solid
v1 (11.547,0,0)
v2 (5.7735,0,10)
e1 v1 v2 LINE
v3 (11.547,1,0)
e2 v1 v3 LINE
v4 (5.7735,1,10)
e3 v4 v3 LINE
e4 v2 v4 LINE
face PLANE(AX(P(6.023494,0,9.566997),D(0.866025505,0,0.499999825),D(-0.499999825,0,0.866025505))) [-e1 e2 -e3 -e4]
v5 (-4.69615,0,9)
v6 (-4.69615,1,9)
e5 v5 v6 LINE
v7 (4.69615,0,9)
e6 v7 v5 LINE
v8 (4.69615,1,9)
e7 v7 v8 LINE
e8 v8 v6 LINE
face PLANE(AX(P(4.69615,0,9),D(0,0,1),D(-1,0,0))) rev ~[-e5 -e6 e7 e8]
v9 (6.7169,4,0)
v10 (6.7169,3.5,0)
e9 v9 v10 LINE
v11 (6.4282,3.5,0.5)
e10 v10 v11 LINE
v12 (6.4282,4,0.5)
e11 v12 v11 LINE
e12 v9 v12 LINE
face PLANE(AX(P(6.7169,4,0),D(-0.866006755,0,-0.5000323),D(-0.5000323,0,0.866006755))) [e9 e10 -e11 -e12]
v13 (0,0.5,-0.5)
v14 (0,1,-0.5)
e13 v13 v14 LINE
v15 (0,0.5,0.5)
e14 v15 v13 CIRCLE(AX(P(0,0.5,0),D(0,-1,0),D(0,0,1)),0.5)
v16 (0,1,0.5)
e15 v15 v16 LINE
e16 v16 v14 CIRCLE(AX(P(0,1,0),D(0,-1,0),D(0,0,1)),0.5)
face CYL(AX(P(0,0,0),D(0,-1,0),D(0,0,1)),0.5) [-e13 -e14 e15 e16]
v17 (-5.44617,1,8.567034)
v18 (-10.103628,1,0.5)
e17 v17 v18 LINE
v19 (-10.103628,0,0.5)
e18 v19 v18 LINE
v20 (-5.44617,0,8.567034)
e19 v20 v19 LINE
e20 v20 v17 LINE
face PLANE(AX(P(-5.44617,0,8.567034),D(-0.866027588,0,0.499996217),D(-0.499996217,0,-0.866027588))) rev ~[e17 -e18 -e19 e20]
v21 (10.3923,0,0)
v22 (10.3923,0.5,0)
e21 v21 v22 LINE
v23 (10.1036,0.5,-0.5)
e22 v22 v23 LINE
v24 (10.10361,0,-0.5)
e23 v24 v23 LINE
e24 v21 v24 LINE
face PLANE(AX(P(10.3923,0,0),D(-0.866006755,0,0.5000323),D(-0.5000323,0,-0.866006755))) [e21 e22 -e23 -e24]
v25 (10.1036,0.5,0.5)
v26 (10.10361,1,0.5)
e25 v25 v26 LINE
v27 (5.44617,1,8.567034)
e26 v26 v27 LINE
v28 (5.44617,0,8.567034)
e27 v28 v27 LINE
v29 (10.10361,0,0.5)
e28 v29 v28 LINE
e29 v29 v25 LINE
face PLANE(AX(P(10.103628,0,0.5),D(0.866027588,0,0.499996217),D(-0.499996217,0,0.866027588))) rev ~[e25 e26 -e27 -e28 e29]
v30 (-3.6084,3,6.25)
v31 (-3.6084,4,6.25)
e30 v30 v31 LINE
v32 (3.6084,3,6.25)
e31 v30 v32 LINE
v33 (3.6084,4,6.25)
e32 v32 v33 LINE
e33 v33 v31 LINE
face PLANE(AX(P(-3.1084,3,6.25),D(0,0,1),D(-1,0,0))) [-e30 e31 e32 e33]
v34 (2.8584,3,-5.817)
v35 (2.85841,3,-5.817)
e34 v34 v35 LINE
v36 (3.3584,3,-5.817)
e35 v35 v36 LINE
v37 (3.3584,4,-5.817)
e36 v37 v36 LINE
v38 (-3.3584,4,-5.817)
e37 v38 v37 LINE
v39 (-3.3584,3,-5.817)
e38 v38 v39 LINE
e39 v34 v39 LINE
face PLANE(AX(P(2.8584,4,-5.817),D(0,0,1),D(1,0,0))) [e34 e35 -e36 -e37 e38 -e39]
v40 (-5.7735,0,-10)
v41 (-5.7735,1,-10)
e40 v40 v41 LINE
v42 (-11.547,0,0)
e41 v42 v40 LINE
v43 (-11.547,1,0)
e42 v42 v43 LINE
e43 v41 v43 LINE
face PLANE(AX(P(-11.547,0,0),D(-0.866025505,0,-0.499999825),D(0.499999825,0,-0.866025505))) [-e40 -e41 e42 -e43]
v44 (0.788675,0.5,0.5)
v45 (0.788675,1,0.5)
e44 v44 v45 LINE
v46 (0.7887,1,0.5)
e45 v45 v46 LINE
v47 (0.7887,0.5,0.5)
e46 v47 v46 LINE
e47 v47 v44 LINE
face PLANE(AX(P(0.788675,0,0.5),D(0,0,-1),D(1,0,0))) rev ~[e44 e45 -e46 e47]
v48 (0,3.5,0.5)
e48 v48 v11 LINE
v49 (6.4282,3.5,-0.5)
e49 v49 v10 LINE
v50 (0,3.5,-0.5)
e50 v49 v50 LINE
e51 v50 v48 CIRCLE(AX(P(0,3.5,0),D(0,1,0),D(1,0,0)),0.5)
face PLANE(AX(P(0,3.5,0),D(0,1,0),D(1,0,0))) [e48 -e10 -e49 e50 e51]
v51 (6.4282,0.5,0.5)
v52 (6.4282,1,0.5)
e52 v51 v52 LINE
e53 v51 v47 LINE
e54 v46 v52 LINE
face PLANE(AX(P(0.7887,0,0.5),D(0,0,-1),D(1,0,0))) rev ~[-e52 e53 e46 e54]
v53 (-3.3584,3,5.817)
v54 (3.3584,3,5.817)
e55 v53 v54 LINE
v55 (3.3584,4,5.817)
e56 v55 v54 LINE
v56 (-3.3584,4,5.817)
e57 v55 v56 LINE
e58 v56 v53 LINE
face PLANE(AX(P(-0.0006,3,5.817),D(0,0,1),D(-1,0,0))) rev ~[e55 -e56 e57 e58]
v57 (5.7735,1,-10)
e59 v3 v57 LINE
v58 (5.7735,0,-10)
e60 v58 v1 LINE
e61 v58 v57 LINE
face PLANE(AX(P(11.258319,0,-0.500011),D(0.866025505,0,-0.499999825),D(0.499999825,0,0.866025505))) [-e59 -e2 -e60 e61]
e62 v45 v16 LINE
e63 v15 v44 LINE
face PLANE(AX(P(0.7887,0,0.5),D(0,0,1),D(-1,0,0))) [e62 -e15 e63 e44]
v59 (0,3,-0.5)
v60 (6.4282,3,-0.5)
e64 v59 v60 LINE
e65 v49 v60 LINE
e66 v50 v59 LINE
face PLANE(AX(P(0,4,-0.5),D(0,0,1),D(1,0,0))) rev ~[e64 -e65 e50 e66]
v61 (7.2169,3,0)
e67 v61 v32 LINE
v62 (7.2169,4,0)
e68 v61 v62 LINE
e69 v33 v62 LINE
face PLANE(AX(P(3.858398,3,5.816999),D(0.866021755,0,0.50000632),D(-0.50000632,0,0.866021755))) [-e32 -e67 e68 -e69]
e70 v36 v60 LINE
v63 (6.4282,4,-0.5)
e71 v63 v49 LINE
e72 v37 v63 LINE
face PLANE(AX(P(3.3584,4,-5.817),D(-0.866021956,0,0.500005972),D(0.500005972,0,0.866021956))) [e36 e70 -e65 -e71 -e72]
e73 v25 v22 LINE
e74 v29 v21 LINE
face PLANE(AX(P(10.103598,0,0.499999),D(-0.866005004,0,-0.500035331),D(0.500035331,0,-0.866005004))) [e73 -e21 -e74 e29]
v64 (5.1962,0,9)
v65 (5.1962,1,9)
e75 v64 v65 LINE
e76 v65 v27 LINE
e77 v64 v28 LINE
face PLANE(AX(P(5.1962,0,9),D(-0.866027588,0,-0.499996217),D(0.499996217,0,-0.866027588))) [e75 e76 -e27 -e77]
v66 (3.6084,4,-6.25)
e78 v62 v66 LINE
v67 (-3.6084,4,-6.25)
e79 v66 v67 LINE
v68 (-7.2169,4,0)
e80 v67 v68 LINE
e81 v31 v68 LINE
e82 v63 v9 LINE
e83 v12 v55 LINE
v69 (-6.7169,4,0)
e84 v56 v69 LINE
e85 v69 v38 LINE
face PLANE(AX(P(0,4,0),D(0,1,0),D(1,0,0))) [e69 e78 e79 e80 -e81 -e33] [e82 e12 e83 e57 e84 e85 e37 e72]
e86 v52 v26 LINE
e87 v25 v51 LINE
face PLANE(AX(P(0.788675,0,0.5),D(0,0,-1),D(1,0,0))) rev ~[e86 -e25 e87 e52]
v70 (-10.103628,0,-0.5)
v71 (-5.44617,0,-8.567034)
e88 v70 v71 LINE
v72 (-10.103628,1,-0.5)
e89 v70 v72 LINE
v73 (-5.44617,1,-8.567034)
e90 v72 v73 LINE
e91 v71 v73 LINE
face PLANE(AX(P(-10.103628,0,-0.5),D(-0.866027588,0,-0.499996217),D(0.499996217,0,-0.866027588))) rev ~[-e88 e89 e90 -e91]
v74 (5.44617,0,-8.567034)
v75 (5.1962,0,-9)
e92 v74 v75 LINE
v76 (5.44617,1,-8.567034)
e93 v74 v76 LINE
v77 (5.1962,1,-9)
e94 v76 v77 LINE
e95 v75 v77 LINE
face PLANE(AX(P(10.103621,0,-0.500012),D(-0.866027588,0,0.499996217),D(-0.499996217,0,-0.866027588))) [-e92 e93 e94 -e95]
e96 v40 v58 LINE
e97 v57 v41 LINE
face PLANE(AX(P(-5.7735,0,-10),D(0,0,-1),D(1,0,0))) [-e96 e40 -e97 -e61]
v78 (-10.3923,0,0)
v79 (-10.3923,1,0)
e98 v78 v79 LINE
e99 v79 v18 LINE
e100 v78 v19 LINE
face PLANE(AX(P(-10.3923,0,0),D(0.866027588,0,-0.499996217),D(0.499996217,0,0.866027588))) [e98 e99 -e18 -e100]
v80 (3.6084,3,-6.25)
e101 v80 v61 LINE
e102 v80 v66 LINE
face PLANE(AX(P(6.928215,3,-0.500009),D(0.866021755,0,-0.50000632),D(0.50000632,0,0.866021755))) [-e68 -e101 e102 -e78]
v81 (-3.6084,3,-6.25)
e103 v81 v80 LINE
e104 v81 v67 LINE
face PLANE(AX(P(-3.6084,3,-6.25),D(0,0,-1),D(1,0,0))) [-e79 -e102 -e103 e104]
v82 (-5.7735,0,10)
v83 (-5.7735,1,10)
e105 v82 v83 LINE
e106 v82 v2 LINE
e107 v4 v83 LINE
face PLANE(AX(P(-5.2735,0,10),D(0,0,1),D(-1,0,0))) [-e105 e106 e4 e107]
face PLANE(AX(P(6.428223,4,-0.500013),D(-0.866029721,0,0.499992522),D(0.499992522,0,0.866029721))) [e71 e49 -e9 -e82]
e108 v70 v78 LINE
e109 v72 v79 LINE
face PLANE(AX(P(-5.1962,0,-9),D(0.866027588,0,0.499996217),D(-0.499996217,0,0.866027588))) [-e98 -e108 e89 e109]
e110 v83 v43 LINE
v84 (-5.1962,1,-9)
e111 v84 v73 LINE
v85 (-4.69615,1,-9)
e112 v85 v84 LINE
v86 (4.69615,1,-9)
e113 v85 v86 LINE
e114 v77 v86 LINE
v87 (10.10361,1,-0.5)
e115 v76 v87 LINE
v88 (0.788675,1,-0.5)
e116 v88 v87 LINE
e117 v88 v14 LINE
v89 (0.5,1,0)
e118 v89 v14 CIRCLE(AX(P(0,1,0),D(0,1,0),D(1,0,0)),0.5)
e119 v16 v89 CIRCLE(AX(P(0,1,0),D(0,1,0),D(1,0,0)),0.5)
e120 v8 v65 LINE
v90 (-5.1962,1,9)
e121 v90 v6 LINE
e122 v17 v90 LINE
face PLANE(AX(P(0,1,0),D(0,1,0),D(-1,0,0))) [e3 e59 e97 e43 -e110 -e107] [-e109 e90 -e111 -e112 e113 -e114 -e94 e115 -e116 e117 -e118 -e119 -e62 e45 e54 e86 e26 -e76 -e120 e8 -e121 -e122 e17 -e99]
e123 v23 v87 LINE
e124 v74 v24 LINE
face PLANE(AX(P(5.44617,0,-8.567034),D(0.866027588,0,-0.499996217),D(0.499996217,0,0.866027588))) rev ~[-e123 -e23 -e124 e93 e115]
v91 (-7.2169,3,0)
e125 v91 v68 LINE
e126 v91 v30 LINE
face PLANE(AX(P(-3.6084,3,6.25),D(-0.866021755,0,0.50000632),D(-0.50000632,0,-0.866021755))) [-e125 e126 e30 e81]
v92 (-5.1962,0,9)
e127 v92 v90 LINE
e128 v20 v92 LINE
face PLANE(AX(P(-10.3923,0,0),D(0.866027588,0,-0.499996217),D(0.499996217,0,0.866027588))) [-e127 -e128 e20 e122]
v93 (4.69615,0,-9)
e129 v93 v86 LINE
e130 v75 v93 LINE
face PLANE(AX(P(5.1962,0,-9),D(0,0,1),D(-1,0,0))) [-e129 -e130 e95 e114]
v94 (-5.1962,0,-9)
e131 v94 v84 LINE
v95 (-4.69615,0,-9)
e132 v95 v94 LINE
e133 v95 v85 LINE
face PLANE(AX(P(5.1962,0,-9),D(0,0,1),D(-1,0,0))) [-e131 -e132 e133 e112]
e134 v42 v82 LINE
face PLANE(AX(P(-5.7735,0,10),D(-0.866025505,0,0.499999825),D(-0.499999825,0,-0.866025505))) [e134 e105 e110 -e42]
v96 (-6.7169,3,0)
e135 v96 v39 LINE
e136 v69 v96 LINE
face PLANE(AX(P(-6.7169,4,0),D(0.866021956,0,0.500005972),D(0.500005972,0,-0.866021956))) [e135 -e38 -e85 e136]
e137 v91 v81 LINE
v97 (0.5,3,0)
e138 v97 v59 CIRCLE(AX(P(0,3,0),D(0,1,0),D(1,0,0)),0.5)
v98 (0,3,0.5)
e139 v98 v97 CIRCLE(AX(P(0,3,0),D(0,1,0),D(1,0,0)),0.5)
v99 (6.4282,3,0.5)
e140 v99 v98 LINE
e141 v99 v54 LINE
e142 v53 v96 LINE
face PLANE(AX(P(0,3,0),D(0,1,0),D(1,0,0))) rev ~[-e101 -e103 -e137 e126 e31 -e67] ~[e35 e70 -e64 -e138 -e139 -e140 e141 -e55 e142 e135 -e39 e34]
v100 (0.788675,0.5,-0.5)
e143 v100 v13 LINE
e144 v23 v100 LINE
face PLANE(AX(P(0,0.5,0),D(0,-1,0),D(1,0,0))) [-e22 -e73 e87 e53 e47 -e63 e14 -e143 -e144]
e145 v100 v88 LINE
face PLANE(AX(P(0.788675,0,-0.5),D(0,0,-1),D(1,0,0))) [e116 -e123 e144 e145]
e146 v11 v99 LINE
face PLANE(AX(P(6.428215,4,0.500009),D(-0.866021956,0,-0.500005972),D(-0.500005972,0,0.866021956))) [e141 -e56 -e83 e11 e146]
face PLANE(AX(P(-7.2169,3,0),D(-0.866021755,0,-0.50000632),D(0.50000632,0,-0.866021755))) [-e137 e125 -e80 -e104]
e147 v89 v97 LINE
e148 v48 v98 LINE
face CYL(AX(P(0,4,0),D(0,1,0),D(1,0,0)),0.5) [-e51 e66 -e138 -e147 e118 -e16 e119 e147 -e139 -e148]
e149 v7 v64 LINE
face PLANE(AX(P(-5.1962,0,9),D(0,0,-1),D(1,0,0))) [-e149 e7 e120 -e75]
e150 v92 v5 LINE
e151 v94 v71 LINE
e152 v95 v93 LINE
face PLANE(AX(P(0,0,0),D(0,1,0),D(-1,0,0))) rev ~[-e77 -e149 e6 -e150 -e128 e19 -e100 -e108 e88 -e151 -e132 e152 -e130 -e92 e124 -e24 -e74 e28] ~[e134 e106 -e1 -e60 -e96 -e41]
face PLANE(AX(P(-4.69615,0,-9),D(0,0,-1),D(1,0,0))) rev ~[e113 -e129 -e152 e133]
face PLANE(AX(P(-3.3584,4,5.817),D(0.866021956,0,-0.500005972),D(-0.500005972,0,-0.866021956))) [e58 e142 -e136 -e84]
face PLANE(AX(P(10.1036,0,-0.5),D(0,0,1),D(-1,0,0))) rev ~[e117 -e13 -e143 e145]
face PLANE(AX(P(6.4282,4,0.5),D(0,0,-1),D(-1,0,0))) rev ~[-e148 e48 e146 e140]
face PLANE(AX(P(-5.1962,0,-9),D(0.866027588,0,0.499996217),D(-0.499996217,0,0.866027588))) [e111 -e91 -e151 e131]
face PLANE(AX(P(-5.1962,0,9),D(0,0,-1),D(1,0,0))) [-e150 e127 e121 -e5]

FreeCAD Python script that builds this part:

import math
import FreeCAD as App
import Part
import Sketcher

V = App.Vector
Q = App.Units.Quantity


def add_polygon(sketch, points):
    """Adds a closed chain of lines whose ends are joined by coincident constraints."""
    first, n = sketch.GeometryCount, len(points)
    for a, b in zip(points, points[1:] + points[:1]):
        sketch.addGeometry(Part.LineSegment(App.Vector(*a, 0), App.Vector(*b, 0)), False)
    for i in range(n):
        sketch.addConstraint(Sketcher.Constraint("Coincident", first + i, 2, first + (i + 1) % n, 1))

doc = App.newDocument("Part")
body = doc.addObject("PartDesign::Body", "Body")

# Sketch on XZ plane
sketch1 = body.newObject("Sketcher::SketchObject", "Sketch")
sketch1.AttachmentSupport = (doc.getObject("XZ_Plane"), [""])
sketch1.MapMode = "FlatFace"
add_polygon(sketch1, [(-6, 10), (6, 10), (12, 0), (6, -10), (-6, -10), (-12, 0)])  # lines 0-5
add_polygon(sketch1, [(-5, 9), (0, 1), (5, 9)])  # lines 6-8
add_polygon(sketch1, [(-5, 9), (-10, 0), (-1, 0)])  # lines 9-11
add_polygon(sketch1, [(5, 9), (1, 0), (10, 0)])  # lines 12-14
add_polygon(sketch1, [(-10, 0), (-5, -9), (-1, 0)])  # lines 15-17
add_polygon(sketch1, [(10, 0), (1, 0), (5, -9)])  # lines 18-20
add_polygon(sketch1, [(-5, -9), (5, -9), (0, -1)])  # lines 21-23
sketch1.addConstraint(Sketcher.Constraint("Horizontal", 0))
sketch1.addConstraint(Sketcher.Constraint("Horizontal", 3))
sketch1.addConstraint(Sketcher.Constraint("Horizontal", 8))
sketch1.addConstraint(Sketcher.Constraint("Horizontal", 10))
sketch1.addConstraint(Sketcher.Constraint("Horizontal", 13))
sketch1.addConstraint(Sketcher.Constraint("Horizontal", 17))
sketch1.addConstraint(Sketcher.Constraint("Horizontal", 18))
sketch1.addConstraint(Sketcher.Constraint("Horizontal", 21))
sketch1.addConstraint(Sketcher.Constraint("Symmetric", 0, 2, 3, 2, -1, 1))
sketch1.addConstraint(Sketcher.Constraint("Symmetric", 1, 2, 4, 2, -1, 1))
sketch1.addConstraint(Sketcher.Constraint("Symmetric", 14, 2, 15, 2, -1, 1))
sketch1.addConstraint(Sketcher.Constraint("Symmetric", 12, 2, 16, 2, -1, 1))
sketch1.addConstraint(Sketcher.Constraint("Symmetric", 10, 2, 18, 2, -1, 1))
sketch1.addConstraint(Sketcher.Constraint("Symmetric", 11, 2, 19, 2, -1, 1))
sketch1.addConstraint(Sketcher.Constraint("Symmetric", 8, 2, 21, 2, -1, 1))
sketch1.addConstraint(Sketcher.Constraint("Symmetric", 6, 2, 22, 2, -1, 1))
sketch1.addConstraint(Sketcher.Constraint("Symmetric", 10, 2, 12, 2, -2))
sketch1.addConstraint(Sketcher.Constraint("Symmetric", 11, 2, 14, 2, -2))
sketch1.addConstraint(Sketcher.Constraint("PointOnObject", 1, 2, -1))
sketch1.addConstraint(Sketcher.Constraint("PointOnObject", 6, 2, -2))
sketch1.addConstraint(Sketcher.Constraint("Parallel", 2, 5))
sketch1.addConstraint(Sketcher.Constraint("Parallel", 4, 6))
sketch1.addConstraint(Sketcher.Constraint("Parallel", 5, 7))
sketch1.addConstraint(Sketcher.Constraint("Parallel", 7, 9))
sketch1.addConstraint(Sketcher.Constraint("Parallel", 6, 11))
sketch1.addConstraint(Sketcher.Constraint("Parallel", 9, 12))
sketch1.addConstraint(Sketcher.Constraint("Parallel", 11, 14))
sketch1.addConstraint(Sketcher.Constraint("Parallel", 14, 15))
sketch1.addConstraint(Sketcher.Constraint("Parallel", 16, 20))
sketch1.addConstraint(Sketcher.Constraint("Parallel", 20, 23))
sketch1.addConstraint(Sketcher.Constraint("Angle", 1, Q("-60 deg")))
sketch1.addConstraint(Sketcher.Constraint("DistanceY", 2, 2, 0, 2, Q("20 mm")))
sketch1.addConstraint(Sketcher.Constraint("DistanceY", -1, 1, 7, 2, Q("9 mm")))
sketch1.addConstraint(Sketcher.Constraint("DistanceY", 16, 2, 10, 2, Q("1 mm")))
sketch1.addConstraint(Sketcher.Constraint("DistanceX", 0, 1, 0, 2, Q("11.547 mm")))
sketch1.addConstraint(Sketcher.Constraint("DistanceX", 10, 1, 10, 2, Q("9.315 mm")))
sketch1.addConstraint(Sketcher.Constraint("DistanceX", 11, 2, 8, 2, Q("0.75 mm")))
sketch1.addConstraint(Sketcher.Constraint("DistanceX", 8, 2, 8, 1, Q("9.3923 mm")))
pad1 = body.newObject("PartDesign::Pad", "Pad")
pad1.Profile = sketch1
pad1.Length = 1
pad1.Reversed = True

# Sketch on XZ plane
sketch2 = body.newObject("Sketcher::SketchObject", "Sketch001")
sketch2.AttachmentSupport = (doc.getObject("XZ_Plane"), [""])
sketch2.MapMode = "FlatFace"
sketch2.AttachmentOffset = App.Placement(V(0, 0, -1), App.Rotation())
sketch2.addGeometry(Part.Circle(V(0, 0, 0), V(0, 0, 1), 0.5), False)
sketch2.addConstraint(Sketcher.Constraint("Coincident", 0, 3, -1, 1))
sketch2.addConstraint(Sketcher.Constraint("Diameter", 0, Q("1 mm")))
pad2 = body.newObject("PartDesign::Pad", "Pad001")
pad2.Profile = sketch2
pad2.Length = 2
pad2.Reversed = True

# Sketch on XZ plane
sketch3 = body.newObject("Sketcher::SketchObject", "Sketch002")
sketch3.AttachmentSupport = (doc.getObject("XZ_Plane"), [""])
sketch3.MapMode = "FlatFace"
sketch3.AttachmentOffset = App.Placement(V(0, 0, -3), App.Rotation())
add_polygon(sketch3, [(-4, 6), (4, 6), (7, 0), (4, -6), (-4, -6), (-7, 0)])  # lines 0-5
add_polygon(sketch3, [(-4, 5), (-6, 0), (-1, 0)])  # lines 6-8
add_polygon(sketch3, [(-3, 6), (0, 1), (3, 6)])  # lines 9-11
add_polygon(sketch3, [(4, 5), (1, 0), (6, 0)])  # lines 12-14
add_polygon(sketch3, [(-1, 0), (-6, 0), (-4, -5)])  # lines 15-17
add_polygon(sketch3, [(0, -1), (-3, -6), (3, -6)])  # lines 18-20
add_polygon(sketch3, [(1, 0), (4, -5), (6, 0)])  # lines 21-23
sketch3.addConstraint(Sketcher.Constraint("Horizontal", 0))
sketch3.addConstraint(Sketcher.Constraint("Horizontal", 3))
sketch3.addConstraint(Sketcher.Constraint("Horizontal", 7))
sketch3.addConstraint(Sketcher.Constraint("Horizontal", 11))
sketch3.addConstraint(Sketcher.Constraint("Horizontal", 13))
sketch3.addConstraint(Sketcher.Constraint("Horizontal", 15))
sketch3.addConstraint(Sketcher.Constraint("Horizontal", 19))
sketch3.addConstraint(Sketcher.Constraint("Horizontal", 23))
sketch3.addConstraint(Sketcher.Constraint("Symmetric", 0, 2, 3, 2, -1, 1))
sketch3.addConstraint(Sketcher.Constraint("Symmetric", 1, 2, 4, 2, -1, 1))
sketch3.addConstraint(Sketcher.Constraint("Symmetric", 13, 2, 15, 2, -1, 1))
sketch3.addConstraint(Sketcher.Constraint("Symmetric", 14, 2, 16, 2, -1, 1))
sketch3.addConstraint(Sketcher.Constraint("Symmetric", 10, 2, 18, 2, -1, 1))
sketch3.addConstraint(Sketcher.Constraint("Symmetric", 9, 2, 20, 2, -1, 1))
sketch3.addConstraint(Sketcher.Constraint("Symmetric", 8, 2, 21, 2, -1, 1))
sketch3.addConstraint(Sketcher.Constraint("Symmetric", 6, 2, 22, 2, -1, 1))
sketch3.addConstraint(Sketcher.Constraint("Symmetric", 7, 2, 12, 2, -2))
sketch3.addConstraint(Sketcher.Constraint("Symmetric", 8, 2, 14, 2, -2))
sketch3.addConstraint(Sketcher.Constraint("PointOnObject", 1, 2, -1))
sketch3.addConstraint(Sketcher.Constraint("PointOnObject", 9, 2, -2))
sketch3.addConstraint(Sketcher.Constraint("Parallel", 2, 5))
sketch3.addConstraint(Sketcher.Constraint("Parallel", 4, 8))
sketch3.addConstraint(Sketcher.Constraint("Parallel", 8, 9))
sketch3.addConstraint(Sketcher.Constraint("Parallel", 5, 10))
sketch3.addConstraint(Sketcher.Constraint("Parallel", 10, 12))
sketch3.addConstraint(Sketcher.Constraint("Parallel", 12, 17))
sketch3.addConstraint(Sketcher.Constraint("Parallel", 9, 20))
sketch3.addConstraint(Sketcher.Constraint("Parallel", 20, 21))
sketch3.addConstraint(Sketcher.Constraint("Vertical", 6, 2, 15, 2))
sketch3.addConstraint(Sketcher.Constraint("DistanceY", 2, 2, 0, 2, Q("12.5 mm")))
sketch3.addConstraint(Sketcher.Constraint("Angle", 1, Q("-59.9996 deg")))
sketch3.addConstraint(Sketcher.Constraint("DistanceY", 15, 2, 6, 2, Q("1 mm")))
sketch3.addConstraint(Sketcher.Constraint("DistanceX", 10, 2, 0, 2, Q("0.75 mm")))
sketch3.addConstraint(Sketcher.Constraint("Distance", 9, Q("5.717 mm")))
sketch3.addConstraint(Sketcher.Constraint("DistanceX", 7, 1, 7, 2, Q("5.5736 mm")))
sketch3.addConstraint(Sketcher.Constraint("DistanceY", -1, 1, 9, 2, Q("0.866 mm")))
sketch3.addConstraint(Sketcher.Constraint("DistanceX", 6, 2, 5, 2, Q("2.754 mm")))
sketch3.addConstraint(Sketcher.Constraint("DistanceX", 5, 2, 8, 2, Q("0.005 mm")))
pad3 = body.newObject("PartDesign::Pad", "Pad002")
pad3.Profile = sketch3
pad3.Length = 1
pad3.Reversed = True

# Sketch on XZ plane
sketch4 = body.newObject("Sketcher::SketchObject", "Sketch003")
sketch4.AttachmentSupport = (doc.getObject("XZ_Plane"), [""])
sketch4.MapMode = "FlatFace"
sketch4.AttachmentOffset = App.Placement(V(0, 0, -4), App.Rotation())
sketch4.addGeometry(Part.LineSegment(V(3.4, -5.8, 0), V(-3.4, -5.8, 0)), False)
sketch4.addGeometry(Part.LineSegment(V(-3.4, -5.8, 0), V(-6.7, 0, 0)), False)
sketch4.addGeometry(Part.LineSegment(V(-6.7, 0, 0), V(-3.4, 5.8, 0)), False)
sketch4.addGeometry(Part.LineSegment(V(-3.4, 5.8, 0), V(3.4, 5.8, 0)), False)
sketch4.addGeometry(Part.LineSegment(V(3.4, 5.8, 0), V(6.4, 0.5, 0)), False)
sketch4.addGeometry(Part.LineSegment(V(6.4, 0.5, 0), V(0, 0.5, 0)), False)
sketch4.addGeometry(Part.ArcOfCircle(Part.Circle(V(0, 0, 0), V(0, 0, 1), 0.5), math.radians(90), math.radians(270)), False)
sketch4.addGeometry(Part.LineSegment(V(0, -0.5, 0), V(6.4, -0.5, 0)), False)
sketch4.addGeometry(Part.LineSegment(V(6.4, -0.5, 0), V(3.4, -5.8, 0)), False)
sketch4.addConstraint(Sketcher.Constraint("Coincident", 0, 2, 1, 1))
sketch4.addConstraint(Sketcher.Constraint("Coincident", 1, 2, 2, 1))
sketch4.addConstraint(Sketcher.Constraint("Coincident", 2, 2, 3, 1))
sketch4.addConstraint(Sketcher.Constraint("Coincident", 3, 2, 4, 1))
sketch4.addConstraint(Sketcher.Constraint("Coincident", 4, 2, 5, 1))
sketch4.addConstraint(Sketcher.Constraint("Tangent", 5, 2, 6, 1))
sketch4.addConstraint(Sketcher.Constraint("Tangent", 6, 2, 7, 1))
sketch4.addConstraint(Sketcher.Constraint("Coincident", 7, 2, 8, 1))
sketch4.addConstraint(Sketcher.Constraint("Coincident", 8, 2, 0, 1))
sketch4.addConstraint(Sketcher.Constraint("Horizontal", 0))
sketch4.addConstraint(Sketcher.Constraint("Horizontal", 3))
sketch4.addConstraint(Sketcher.Constraint("Horizontal", 5))
sketch4.addConstraint(Sketcher.Constraint("Horizontal", 7))
sketch4.addConstraint(Sketcher.Constraint("Coincident", 6, 3, -1, 1))
sketch4.addConstraint(Sketcher.Constraint("Symmetric", 0, 2, 3, 2, -1, 1))
sketch4.addConstraint(Sketcher.Constraint("PointOnObject", 1, 2, -1))
sketch4.addConstraint(Sketcher.Constraint("Parallel", 1, 4))
sketch4.addConstraint(Sketcher.Constraint("Parallel", 2, 8))
sketch4.addConstraint(Sketcher.Constraint("Vertical", 0, 2, 2, 2))
sketch4.addConstraint(Sketcher.Constraint("Vertical", 4, 2, 7, 2))
sketch4.addConstraint(Sketcher.Constraint("Radius", 6, Q("0.5 mm")))
sketch4.addConstraint(Sketcher.Constraint("Angle", 1, Q("120.0004 deg")))
sketch4.addConstraint(Sketcher.Constraint("Distance", 1, Q("6.717 mm")))
sketch4.addConstraint(Sketcher.Constraint("DistanceX", 0, 2, 0, 1, Q("6.7168 mm")))
pocket1 = body.newObject("PartDesign::Pocket", "Pocket")
pocket1.Profile = sketch4
pocket1.Length = 1
pocket1.Reversed = True

# Sketch on XZ plane
sketch5 = body.newObject("Sketcher::SketchObject", "Sketch004")
sketch5.AttachmentSupport = (doc.getObject("XZ_Plane"), [""])
sketch5.MapMode = "FlatFace"
sketch5.AttachmentOffset = App.Placement(V(0, 0, -4), App.Rotation())
sketch5.addGeometry(Part.LineSegment(V(6.43, -0.5, 0), V(6.22, -0.86, 0)), False)
sketch5.addGeometry(Part.LineSegment(V(6.22, -0.86, 0), V(0, -0.5, 0)), False)
sketch5.addGeometry(Part.ArcOfCircle(Part.Circle(V(0, 0, 0), V(0, 0, 1), 0.5), math.radians(90), math.radians(270)), False)
sketch5.addGeometry(Part.LineSegment(V(0, 0.5, 0), V(6.43, 0.5, 0)), False)
sketch5.addGeometry(Part.LineSegment(V(6.43, 0.5, 0), V(6.72, 0, 0)), False)
sketch5.addGeometry(Part.LineSegment(V(6.72, 0, 0), V(6.43, -0.5, 0)), False)
sketch5.addConstraint(Sketcher.Constraint("Coincident", 0, 2, 1, 1))
sketch5.addConstraint(Sketcher.Constraint("Coincident", 1, 2, 2, 2))
sketch5.addConstraint(Sketcher.Constraint("Tangent", 2, 1, 3, 1))
sketch5.addConstraint(Sketcher.Constraint("Coincident", 3, 2, 4, 1))
sketch5.addConstraint(Sketcher.Constraint("Coincident", 4, 2, 5, 1))
sketch5.addConstraint(Sketcher.Constraint("Coincident", 5, 2, 0, 1))
sketch5.addConstraint(Sketcher.Constraint("Horizontal", 3))
sketch5.addConstraint(Sketcher.Constraint("Coincident", 2, 3, -1, 1))
sketch5.addConstraint(Sketcher.Constraint("Symmetric", 3, 2, 5, 2, -1))
sketch5.addConstraint(Sketcher.Constraint("PointOnObject", 1, 2, -2))
sketch5.addConstraint(Sketcher.Constraint("PointOnObject", 4, 2, -1))
sketch5.addConstraint(Sketcher.Constraint("Parallel", 0, 5))
sketch5.addConstraint(Sketcher.Constraint("Radius", 2, Q("0.5 mm")))
sketch5.addConstraint(Sketcher.Constraint("Angle", 0, Q("-120.0002 deg")))
sketch5.addConstraint(Sketcher.Constraint("DistanceX", -1, 1, 0, 2, Q("6.22 mm")))
sketch5.addConstraint(Sketcher.Constraint("DistanceX", 3, 1, 3, 2, Q("6.4282 mm")))
pocket2 = body.newObject("PartDesign::Pocket", "Pocket001")
pocket2.Profile = sketch5
pocket2.Length = 0.5
pocket2.Reversed = True

# Sketch on XZ plane
sketch6 = body.newObject("Sketcher::SketchObject", "Sketch005")
sketch6.AttachmentSupport = (doc.getObject("XZ_Plane"), [""])
sketch6.MapMode = "FlatFace"
sketch6.addGeometry(Part.LineSegment(V(5.2, -9, 0), V(10.1, -0.5, 0)), False)
sketch6.addGeometry(Part.LineSegment(V(10.1, -0.5, 0), V(0, -0.5, 0)), False)
sketch6.addGeometry(Part.ArcOfCircle(Part.Circle(V(0, 0, 0), V(0, 0, 1), 0.5), math.radians(90), math.radians(270)), False)
sketch6.addGeometry(Part.LineSegment(V(0, 0.5, 0), V(10.1, 0.5, 0)), False)
sketch6.addGeometry(Part.LineSegment(V(10.1, 0.5, 0), V(5.2, 9, 0)), False)
sketch6.addGeometry(Part.LineSegment(V(5.2, 9, 0), V(-5.2, 9, 0)), False)
sketch6.addGeometry(Part.LineSegment(V(-5.2, 9, 0), V(-10.4, 0, 0)), False)
sketch6.addGeometry(Part.LineSegment(V(-10.4, 0, 0), V(-5.2, -9, 0)), False)
sketch6.addGeometry(Part.LineSegment(V(-5.2, -9, 0), V(5.2, -9, 0)), False)
sketch6.addConstraint(Sketcher.Constraint("Coincident", 0, 2, 1, 1))
sketch6.addConstraint(Sketcher.Constraint("Tangent", 1, 2, 2, 2))
sketch6.addConstraint(Sketcher.Constraint("Tangent", 2, 1, 3, 1))
sketch6.addConstraint(Sketcher.Constraint("Coincident", 3, 2, 4, 1))
sketch6.addConstraint(Sketcher.Constraint("Coincident", 4, 2, 5, 1))
sketch6.addConstraint(Sketcher.Constraint("Coincident", 5, 2, 6, 1))
sketch6.addConstraint(Sketcher.Constraint("Coincident", 6, 2, 7, 1))
sketch6.addConstraint(Sketcher.Constraint("Coincident", 7, 2, 8, 1))
sketch6.addConstraint(Sketcher.Constraint("Coincident", 8, 2, 0, 1))
sketch6.addConstraint(Sketcher.Constraint("Horizontal", 1))
sketch6.addConstraint(Sketcher.Constraint("Horizontal", 3))
sketch6.addConstraint(Sketcher.Constraint("Horizontal", 5))
sketch6.addConstraint(Sketcher.Constraint("Horizontal", 8))
sketch6.addConstraint(Sketcher.Constraint("Coincident", 2, 3, -1, 1))
sketch6.addConstraint(Sketcher.Constraint("Symmetric", 4, 2, 7, 2, -1, 1))
sketch6.addConstraint(Sketcher.Constraint("PointOnObject", 6, 2, -1))
sketch6.addConstraint(Sketcher.Constraint("Parallel", 0, 6))
sketch6.addConstraint(Sketcher.Constraint("Parallel", 4, 7))
sketch6.addConstraint(Sketcher.Constraint("Vertical", 0, 2, 3, 2))
sketch6.addConstraint(Sketcher.Constraint("Vertical", 5, 2, 7, 2))
sketch6.addConstraint(Sketcher.Constraint("Radius", 2, Q("0.5 mm")))
sketch6.addConstraint(Sketcher.Constraint("Angle", 0, Q("60.0003 deg")))
sketch6.addConstraint(Sketcher.Constraint("DistanceY", -1, 1, 4, 2, Q("9 mm")))
sketch6.addConstraint(Sketcher.Constraint("DistanceX", 1, 2, 1, 1, Q("10.1036 mm")))
pocket3 = body.newObject("PartDesign::Pocket", "Pocket002")
pocket3.Profile = sketch6
pocket3.Length = 1

# Sketch on XZ plane
sketch7 = body.newObject("Sketcher::SketchObject", "Sketch006")
sketch7.AttachmentSupport = (doc.getObject("XZ_Plane"), [""])
sketch7.MapMode = "FlatFace"
sketch7.addGeometry(Part.LineSegment(V(10.4, 0, 0), V(10.1, 0.5, 0)), False)
sketch7.addGeometry(Part.LineSegment(V(10.1, 0.5, 0), V(9.8, 1.1, 0)), False)
sketch7.addGeometry(Part.LineSegment(V(9.8, 1.1, 0), V(0, 0.5, 0)), False)
sketch7.addGeometry(Part.ArcOfCircle(Part.Circle(V(0, 0, 0), V(0, 0, 1), 0.5), math.radians(90), math.radians(270)), False)
sketch7.addGeometry(Part.LineSegment(V(0, -0.5, 0), V(10.1, -0.5, 0)), False)
sketch7.addGeometry(Part.LineSegment(V(10.1, -0.5, 0), V(10.4, 0, 0)), False)
sketch7.addConstraint(Sketcher.Constraint("Coincident", 0, 2, 1, 1))
sketch7.addConstraint(Sketcher.Constraint("Coincident", 1, 2, 2, 1))
sketch7.addConstraint(Sketcher.Constraint("Coincident", 2, 2, 3, 1))
sketch7.addConstraint(Sketcher.Constraint("Tangent", 3, 2, 4, 1))
sketch7.addConstraint(Sketcher.Constraint("Coincident", 4, 2, 5, 1))
sketch7.addConstraint(Sketcher.Constraint("Coincident", 5, 2, 0, 1))
sketch7.addConstraint(Sketcher.Constraint("Horizontal", 4))
sketch7.addConstraint(Sketcher.Constraint("Coincident", 3, 3, -1, 1))
sketch7.addConstraint(Sketcher.Constraint("Symmetric", 0, 2, 4, 2, -1))
sketch7.addConstraint(Sketcher.Constraint("PointOnObject", 2, 2, -2))
sketch7.addConstraint(Sketcher.Constraint("PointOnObject", 5, 2, -1))
sketch7.addConstraint(Sketcher.Constraint("Parallel", 0, 1))
sketch7.addConstraint(Sketcher.Constraint("Radius", 3, Q("0.5 mm")))
sketch7.addConstraint(Sketcher.Constraint("Angle", 1, Q("119.9996 deg")))
sketch7.addConstraint(Sketcher.Constraint("Distance", 1, Q("0.64 mm")))
sketch7.addConstraint(Sketcher.Constraint("DistanceX", 4, 1, 4, 2, Q("10.1036 mm")))
pocket4 = body.newObject("PartDesign::Pocket", "Pocket003")
pocket4.Profile = sketch7
pocket4.Length = 0.5

doc.recompute()
